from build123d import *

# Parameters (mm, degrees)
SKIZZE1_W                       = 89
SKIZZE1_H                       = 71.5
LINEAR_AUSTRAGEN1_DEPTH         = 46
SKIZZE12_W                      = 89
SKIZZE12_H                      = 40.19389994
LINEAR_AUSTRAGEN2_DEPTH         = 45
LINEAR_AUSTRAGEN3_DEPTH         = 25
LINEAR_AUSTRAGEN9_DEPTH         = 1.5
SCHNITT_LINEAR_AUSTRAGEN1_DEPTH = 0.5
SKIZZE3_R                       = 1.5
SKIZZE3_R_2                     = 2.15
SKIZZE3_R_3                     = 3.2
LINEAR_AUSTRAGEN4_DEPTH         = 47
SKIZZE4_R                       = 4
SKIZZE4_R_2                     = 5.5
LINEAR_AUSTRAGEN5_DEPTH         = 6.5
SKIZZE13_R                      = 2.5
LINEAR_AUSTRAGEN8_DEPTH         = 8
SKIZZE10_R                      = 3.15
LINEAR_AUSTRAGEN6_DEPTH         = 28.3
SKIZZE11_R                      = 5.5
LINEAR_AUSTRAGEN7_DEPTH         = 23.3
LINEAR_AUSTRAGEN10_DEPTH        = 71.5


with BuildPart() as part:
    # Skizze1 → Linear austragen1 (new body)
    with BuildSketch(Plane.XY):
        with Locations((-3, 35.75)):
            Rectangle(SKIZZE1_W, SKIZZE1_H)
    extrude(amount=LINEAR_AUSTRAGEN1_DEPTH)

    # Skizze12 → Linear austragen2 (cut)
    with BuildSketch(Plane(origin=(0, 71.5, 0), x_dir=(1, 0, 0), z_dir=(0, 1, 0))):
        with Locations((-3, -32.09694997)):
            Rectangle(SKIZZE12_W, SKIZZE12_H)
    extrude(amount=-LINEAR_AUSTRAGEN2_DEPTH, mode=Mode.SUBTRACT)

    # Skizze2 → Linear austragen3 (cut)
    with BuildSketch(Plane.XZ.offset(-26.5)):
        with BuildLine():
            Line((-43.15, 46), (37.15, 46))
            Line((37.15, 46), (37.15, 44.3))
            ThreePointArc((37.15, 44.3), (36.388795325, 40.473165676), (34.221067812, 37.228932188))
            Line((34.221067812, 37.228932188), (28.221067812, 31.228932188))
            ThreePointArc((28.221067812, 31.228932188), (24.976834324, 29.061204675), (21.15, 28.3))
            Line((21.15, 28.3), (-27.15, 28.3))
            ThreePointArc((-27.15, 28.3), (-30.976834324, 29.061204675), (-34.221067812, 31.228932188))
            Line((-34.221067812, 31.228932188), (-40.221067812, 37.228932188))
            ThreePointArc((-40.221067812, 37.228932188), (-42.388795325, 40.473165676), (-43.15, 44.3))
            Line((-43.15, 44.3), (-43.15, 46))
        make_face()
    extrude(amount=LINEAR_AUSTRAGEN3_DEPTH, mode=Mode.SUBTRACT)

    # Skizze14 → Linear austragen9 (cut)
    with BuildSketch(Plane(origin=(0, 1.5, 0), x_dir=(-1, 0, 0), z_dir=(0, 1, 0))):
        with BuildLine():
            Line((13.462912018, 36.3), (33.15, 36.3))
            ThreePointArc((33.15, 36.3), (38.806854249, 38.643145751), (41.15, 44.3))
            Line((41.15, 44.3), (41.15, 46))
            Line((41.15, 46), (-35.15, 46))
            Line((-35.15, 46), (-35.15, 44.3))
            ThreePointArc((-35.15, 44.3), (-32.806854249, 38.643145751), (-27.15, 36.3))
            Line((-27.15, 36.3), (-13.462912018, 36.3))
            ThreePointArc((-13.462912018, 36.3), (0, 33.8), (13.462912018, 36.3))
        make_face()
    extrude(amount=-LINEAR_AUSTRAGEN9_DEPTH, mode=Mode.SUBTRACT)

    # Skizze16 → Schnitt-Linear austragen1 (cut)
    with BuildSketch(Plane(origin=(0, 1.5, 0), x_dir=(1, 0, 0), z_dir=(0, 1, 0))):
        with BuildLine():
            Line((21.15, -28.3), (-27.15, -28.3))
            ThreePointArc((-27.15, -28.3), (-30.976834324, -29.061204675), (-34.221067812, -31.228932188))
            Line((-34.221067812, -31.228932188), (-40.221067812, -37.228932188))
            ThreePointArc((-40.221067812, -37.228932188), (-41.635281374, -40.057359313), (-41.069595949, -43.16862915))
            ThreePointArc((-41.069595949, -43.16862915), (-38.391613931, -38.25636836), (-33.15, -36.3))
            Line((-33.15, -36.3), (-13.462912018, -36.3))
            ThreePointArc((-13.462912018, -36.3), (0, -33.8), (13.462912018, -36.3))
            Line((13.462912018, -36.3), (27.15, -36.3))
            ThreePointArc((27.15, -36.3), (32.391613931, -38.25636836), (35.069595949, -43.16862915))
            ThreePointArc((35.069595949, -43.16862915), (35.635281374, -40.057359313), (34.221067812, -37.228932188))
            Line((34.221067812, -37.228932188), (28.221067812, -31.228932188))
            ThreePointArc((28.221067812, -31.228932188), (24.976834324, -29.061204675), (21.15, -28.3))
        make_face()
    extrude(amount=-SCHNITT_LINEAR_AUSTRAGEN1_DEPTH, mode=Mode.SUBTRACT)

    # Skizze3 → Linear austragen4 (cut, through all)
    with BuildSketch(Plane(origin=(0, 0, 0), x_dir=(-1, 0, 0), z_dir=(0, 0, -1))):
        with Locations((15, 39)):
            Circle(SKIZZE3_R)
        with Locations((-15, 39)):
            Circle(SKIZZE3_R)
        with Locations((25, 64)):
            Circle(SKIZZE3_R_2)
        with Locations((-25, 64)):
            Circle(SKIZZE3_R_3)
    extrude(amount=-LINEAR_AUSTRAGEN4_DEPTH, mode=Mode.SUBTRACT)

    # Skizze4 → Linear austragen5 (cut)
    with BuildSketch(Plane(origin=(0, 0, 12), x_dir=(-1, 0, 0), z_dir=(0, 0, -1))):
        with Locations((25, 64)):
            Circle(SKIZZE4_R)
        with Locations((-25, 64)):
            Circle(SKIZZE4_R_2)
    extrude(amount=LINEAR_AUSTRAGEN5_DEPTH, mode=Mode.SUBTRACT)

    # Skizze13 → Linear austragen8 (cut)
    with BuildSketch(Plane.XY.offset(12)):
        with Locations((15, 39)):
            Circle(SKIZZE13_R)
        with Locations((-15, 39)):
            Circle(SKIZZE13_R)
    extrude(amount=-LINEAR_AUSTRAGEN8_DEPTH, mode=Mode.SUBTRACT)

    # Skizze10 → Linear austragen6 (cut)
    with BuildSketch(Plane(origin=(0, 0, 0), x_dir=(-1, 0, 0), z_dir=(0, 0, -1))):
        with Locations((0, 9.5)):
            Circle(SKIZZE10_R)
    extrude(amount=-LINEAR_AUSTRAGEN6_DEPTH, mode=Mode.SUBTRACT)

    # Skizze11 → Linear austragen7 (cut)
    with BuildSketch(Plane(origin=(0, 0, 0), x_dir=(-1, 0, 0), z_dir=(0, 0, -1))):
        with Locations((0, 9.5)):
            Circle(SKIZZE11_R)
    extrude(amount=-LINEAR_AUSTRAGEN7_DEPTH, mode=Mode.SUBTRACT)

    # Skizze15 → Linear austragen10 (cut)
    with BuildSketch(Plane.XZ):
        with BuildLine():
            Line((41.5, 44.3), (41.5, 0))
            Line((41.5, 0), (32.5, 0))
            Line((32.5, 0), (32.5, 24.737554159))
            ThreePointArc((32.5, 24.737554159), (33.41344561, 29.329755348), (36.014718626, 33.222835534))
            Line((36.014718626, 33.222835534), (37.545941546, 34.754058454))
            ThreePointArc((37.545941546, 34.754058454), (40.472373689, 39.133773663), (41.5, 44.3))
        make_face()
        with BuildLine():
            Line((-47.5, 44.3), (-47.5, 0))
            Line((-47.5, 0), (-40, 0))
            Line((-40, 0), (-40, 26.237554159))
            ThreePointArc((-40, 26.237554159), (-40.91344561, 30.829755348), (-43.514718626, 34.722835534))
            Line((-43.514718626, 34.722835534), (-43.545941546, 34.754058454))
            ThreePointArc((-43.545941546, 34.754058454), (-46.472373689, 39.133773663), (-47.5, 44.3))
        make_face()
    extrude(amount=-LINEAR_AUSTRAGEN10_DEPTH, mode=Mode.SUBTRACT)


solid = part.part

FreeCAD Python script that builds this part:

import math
import FreeCAD as App
import Part
import Sketcher

V = App.Vector
Q = App.Units.Quantity


def add_polygon(sketch, points):
    """Adds a closed chain of lines whose ends are joined by coincident constraints."""
    first, n = sketch.GeometryCount, len(points)
    for a, b in zip(points, points[1:] + points[:1]):
        sketch.addGeometry(Part.LineSegment(App.Vector(*a, 0), App.Vector(*b, 0)), False)
    for i in range(n):
        sketch.addConstraint(Sketcher.Constraint("Coincident", first + i, 2, first + (i + 1) % n, 1))

doc = App.newDocument("Part")
body = doc.addObject("PartDesign::Body", "Body")

sketch1 = body.newObject("Sketcher::SketchObject", "Sketch")
sketch1.AttachmentSupport = (doc.getObject("XY_Plane"), [""])
sketch1.MapMode = "FlatFace"
add_polygon(sketch1, [(-47.5, 71.5), (-47.5, 0), (41.5, 0), (41.5, 71.5)])
sketch1.addConstraint(Sketcher.Constraint("Vertical", 0))
sketch1.addConstraint(Sketcher.Constraint("Horizontal", 1))
sketch1.addConstraint(Sketcher.Constraint("Vertical", 2))
sketch1.addConstraint(Sketcher.Constraint("Horizontal", 3))
sketch1.addConstraint(Sketcher.Constraint("PointOnObject", 0, 2, -1))
sketch1.addConstraint(Sketcher.Constraint("DistanceX", 1, 1, 1, 2, Q("89 mm")))
sketch1.addConstraint(Sketcher.Constraint("DistanceY", 0, 2, 0, 1, Q("71.5 mm")))
sketch1.addConstraint(Sketcher.Constraint("DistanceX", 0, 2, -1, 1, Q("47.5 mm")))
pad1 = body.newObject("PartDesign::Pad", "Pad")
pad1.Profile = sketch1
pad1.Length = 46

sketch2 = body.newObject("Sketcher::SketchObject", "Sketch001")
sketch2.AttachmentSupport = (doc.getObject("XZ_Plane"), [""])
sketch2.MapMode = "FlatFace"
sketch2.AttachmentOffset = App.Placement(V(0, 0, -71.5), App.Rotation())
add_polygon(sketch2, [(-47.5, 12), (-47.5, 52.1939), (41.5, 52.1939), (41.5, 12)])
sketch2.addConstraint(Sketcher.Constraint("Vertical", 0))
sketch2.addConstraint(Sketcher.Constraint("Horizontal", 1))
sketch2.addConstraint(Sketcher.Constraint("Vertical", 2))
sketch2.addConstraint(Sketcher.Constraint("Horizontal", 3))
sketch2.addConstraint(Sketcher.Constraint("DistanceX", 1, 1, 1, 2, Q("89 mm")))
sketch2.addConstraint(Sketcher.Constraint("DistanceY", -1, 1, 2, 2, Q("12 mm")))
sketch2.addConstraint(Sketcher.Constraint("DistanceX", 0, 2, -1, 1, Q("47.5 mm")))
sketch2.addConstraint(Sketcher.Constraint("DistanceY", 0, 1, 0, 2, Q("40.1939 mm")))
pocket1 = body.newObject("PartDesign::Pocket", "Pocket")
pocket1.Profile = sketch2
pocket1.Length = 45
pocket1.Reversed = True

sketch3 = body.newObject("Sketcher::SketchObject", "Sketch002")
sketch3.AttachmentSupport = (doc.getObject("XZ_Plane"), [""])
sketch3.MapMode = "FlatFace"
sketch3.AttachmentOffset = App.Placement(V(0, 0, -26.5), App.Rotation())
sketch3.addGeometry(Part.LineSegment(V(37.15, 46, 0), V(-43.15, 46, 0)), False)
sketch3.addGeometry(Part.LineSegment(V(-43.15, 46, 0), V(-43.15, 44.3, 0)), False)
sketch3.addGeometry(Part.ArcOfCircle(Part.Circle(V(-33.15, 44.3, 0), V(0, 0, 1), 10), math.radians(180), math.radians(225)), False)
sketch3.addGeometry(Part.LineSegment(V(-40.221068, 37.228932, 0), V(-34.221068, 31.228932, 0)), False)
sketch3.addGeometry(Part.ArcOfCircle(Part.Circle(V(-27.15, 38.3, 0), V(0, 0, 1), 10), math.radians(-135), math.radians(-90)), False)
sketch3.addGeometry(Part.LineSegment(V(-27.15, 28.3, 0), V(21.15, 28.3, 0)), False)
sketch3.addGeometry(Part.ArcOfCircle(Part.Circle(V(21.15, 38.3, 0), V(0, 0, 1), 10), math.radians(-90), math.radians(-45)), False)
sketch3.addGeometry(Part.LineSegment(V(28.221068, 31.228932, 0), V(34.221068, 37.228932, 0)), False)
sketch3.addGeometry(Part.ArcOfCircle(Part.Circle(V(27.15, 44.3, 0), V(0, 0, 1), 10), math.radians(-45), math.radians(0)), False)
sketch3.addGeometry(Part.LineSegment(V(37.15, 44.3, 0), V(37.15, 46, 0)), False)
sketch3.addConstraint(Sketcher.Constraint("Coincident", 0, 2, 1, 1))
sketch3.addConstraint(Sketcher.Constraint("Tangent", 1, 2, 2, 1))
sketch3.addConstraint(Sketcher.Constraint("Tangent", 2, 2, 3, 1))
sketch3.addConstraint(Sketcher.Constraint("Tangent", 3, 2, 4, 1))
sketch3.addConstraint(Sketcher.Constraint("Tangent", 4, 2, 5, 1))
sketch3.addConstraint(Sketcher.Constraint("Tangent", 5, 2, 6, 1))
sketch3.addConstraint(Sketcher.Constraint("Tangent", 6, 2, 7, 1))
sketch3.addConstraint(Sketcher.Constraint("Tangent", 7, 2, 8, 1))
sketch3.addConstraint(Sketcher.Constraint("Tangent", 8, 2, 9, 1))
sketch3.addConstraint(Sketcher.Constraint("Coincident", 9, 2, 0, 1))
sketch3.addConstraint(Sketcher.Constraint("Horizontal", 0))
sketch3.addConstraint(Sketcher.Constraint("Vertical", 1))
sketch3.addConstraint(Sketcher.Constraint("Horizontal", 5))
sketch3.addConstraint(Sketcher.Constraint("Vertical", 9))
sketch3.addConstraint(Sketcher.Constraint("Equal", 2, 4))
sketch3.addConstraint(Sketcher.Constraint("Equal", 4, 6))
sketch3.addConstraint(Sketcher.Constraint("Equal", 6, 8))
sketch3.addConstraint(Sketcher.Constraint("Perpendicular", 3, 7))
sketch3.addConstraint(Sketcher.Constraint("Horizontal", 2, 3, 8, 3))
sketch3.addConstraint(Sketcher.Constraint("Horizontal", 3, 2, 6, 2))
sketch3.addConstraint(Sketcher.Constraint("Radius", 2, Q("10 mm")))
sketch3.addConstraint(Sketcher.Constraint("DistanceX", 0, 2, 0, 1, Q("80.3 mm")))
sketch3.addConstraint(Sketcher.Constraint("DistanceX", 5, 1, 5, 2, Q("48.3 mm")))
sketch3.addConstraint(Sketcher.Constraint("DistanceY", 1, 2, 1, 1, Q("1.7 mm")))
sketch3.addConstraint(Sketcher.Constraint("DistanceY", -1, 1, 0, 2, Q("46 mm")))
sketch3.addConstraint(Sketcher.Constraint("DistanceX", 2, 3, -1, 1, Q("33.15 mm")))
pocket2 = body.newObject("PartDesign::Pocket", "Pocket001")
pocket2.Profile = sketch3
pocket2.Length = 25
pocket2.Reversed = True

sketch4 = body.newObject("Sketcher::SketchObject", "Sketch003")
sketch4.AttachmentSupport = (doc.getObject("XZ_Plane"), [""])
sketch4.MapMode = "FlatFace"
sketch4.AttachmentOffset = App.Placement(V(0, 0, -1.5), App.Rotation())
sketch4.addGeometry(Part.LineSegment(V(-13.462912, 36.3, 0), V(-33.15, 36.3, 0)), False)
sketch4.addGeometry(Part.ArcOfCircle(Part.Circle(V(-33.15, 44.3, 0), V(0, 0, 1), 8), math.radians(-180), math.radians(-90)), False)
sketch4.addGeometry(Part.LineSegment(V(-41.15, 44.3, 0), V(-41.15, 46, 0)), False)
sketch4.addGeometry(Part.LineSegment(V(-41.15, 46, 0), V(35.15, 46, 0)), False)
sketch4.addGeometry(Part.LineSegment(V(35.15, 46, 0), V(35.15, 44.3, 0)), False)
sketch4.addGeometry(Part.ArcOfCircle(Part.Circle(V(27.15, 44.3, 0), V(0, 0, 1), 8), math.radians(-90), math.radians(0)), False)
sketch4.addGeometry(Part.LineSegment(V(27.15, 36.3, 0), V(13.462912, 36.3, 0)), False)
sketch4.addGeometry(Part.ArcOfCircle(Part.Circle(V(0, 71.3, 0), V(0, 0, 1), 37.5), math.radians(-111.03947), math.radians(-68.96053)), False)
sketch4.addConstraint(Sketcher.Constraint("Tangent", 0, 2, 1, 2))
sketch4.addConstraint(Sketcher.Constraint("Tangent", 1, 1, 2, 1))
sketch4.addConstraint(Sketcher.Constraint("Coincident", 2, 2, 3, 1))
sketch4.addConstraint(Sketcher.Constraint("Coincident", 3, 2, 4, 1))
sketch4.addConstraint(Sketcher.Constraint("Tangent", 4, 2, 5, 2))
sketch4.addConstraint(Sketcher.Constraint("Tangent", 5, 1, 6, 1))
sketch4.addConstraint(Sketcher.Constraint("Coincident", 6, 2, 7, 2))
sketch4.addConstraint(Sketcher.Constraint("Coincident", 7, 1, 0, 1))
sketch4.addConstraint(Sketcher.Constraint("Horizontal", 0))
sketch4.addConstraint(Sketcher.Constraint("Vertical", 2))
sketch4.addConstraint(Sketcher.Constraint("Horizontal", 3))
sketch4.addConstraint(Sketcher.Constraint("Vertical", 4))
sketch4.addConstraint(Sketcher.Constraint("Horizontal", 6))
sketch4.addConstraint(Sketcher.Constraint("Equal", 1, 5))
sketch4.addConstraint(Sketcher.Constraint("Symmetric", 6, 2, 7, 1, -2))
sketch4.addConstraint(Sketcher.Constraint("Radius", 1, Q("8 mm")))
sketch4.addConstraint(Sketcher.Constraint("Radius", 7, Q("37.5 mm")))
sketch4.addConstraint(Sketcher.Constraint("DistanceX", 3, 1, 3, 2, Q("76.3 mm")))
sketch4.addConstraint(Sketcher.Constraint("DistanceY", 2, 1, 2, 2, Q("1.7 mm")))
sketch4.addConstraint(Sketcher.Constraint("DistanceY", -1, 1, 2, 2, Q("46 mm")))
sketch4.addConstraint(Sketcher.Constraint("DistanceY", 5, 3, 7, 3, Q("27 mm")))
sketch4.addConstraint(Sketcher.Constraint("DistanceX", 1, 3, -1, 1, Q("33.15 mm")))
pocket3 = body.newObject("PartDesign::Pocket", "Pocket002")
pocket3.Profile = sketch4
pocket3.Length = 1.5
pocket3.Reversed = True

sketch5 = body.newObject("Sketcher::SketchObject", "Sketch004")
sketch5.AttachmentSupport = (doc.getObject("XZ_Plane"), [""])
sketch5.MapMode = "FlatFace"
sketch5.AttachmentOffset = App.Placement(V(0, 0, -1.5), App.Rotation())
sketch5.addGeometry(Part.LineSegment(V(21.15, 28.3, 0), V(-27.15, 28.3, 0)), False)
sketch5.addGeometry(Part.ArcOfCircle(Part.Circle(V(-27.15, 38.3, 0), V(0, 0, 1), 10), math.radians(-135), math.radians(-90)), False)
sketch5.addGeometry(Part.LineSegment(V(-34.221068, 31.228932, 0), V(-40.221068, 37.228932, 0)), False)
sketch5.addGeometry(Part.ArcOfCircle(Part.Circle(V(-36.685534, 40.764466, 0), V(0, 0, 1), 5), math.radians(151.260205), math.radians(225)), False)
sketch5.addGeometry(Part.ArcOfCircle(Part.Circle(V(-33.15, 44.3, 0), V(0, 0, 1), 8), math.radians(-171.869898), math.radians(-90)), False)
sketch5.addGeometry(Part.LineSegment(V(-33.15, 36.3, 0), V(-13.462912, 36.3, 0)), False)
sketch5.addGeometry(Part.ArcOfCircle(Part.Circle(V(0, 71.3, 0), V(0, 0, 1), 37.5), math.radians(-111.03947), math.radians(-68.96053)), False)
sketch5.addGeometry(Part.LineSegment(V(13.462912, 36.3, 0), V(27.15, 36.3, 0)), False)
sketch5.addGeometry(Part.ArcOfCircle(Part.Circle(V(27.15, 44.3, 0), V(0, 0, 1), 8), math.radians(-90), math.radians(-8.130102)), False)
sketch5.addGeometry(Part.ArcOfCircle(Part.Circle(V(30.685534, 40.764466, 0), V(0, 0, 1), 5), math.radians(-45), math.radians(28.739795)), False)
sketch5.addGeometry(Part.LineSegment(V(34.221068, 37.228932, 0), V(28.221068, 31.228932, 0)), False)
sketch5.addGeometry(Part.ArcOfCircle(Part.Circle(V(21.15, 38.3, 0), V(0, 0, 1), 10), math.radians(-90), math.radians(-45)), False)
sketch5.addConstraint(Sketcher.Constraint("Tangent", 0, 2, 1, 2))
sketch5.addConstraint(Sketcher.Constraint("Tangent", 1, 1, 2, 1))
sketch5.addConstraint(Sketcher.Constraint("Tangent", 2, 2, 3, 2))
sketch5.addConstraint(Sketcher.Constraint("Coincident", 3, 1, 4, 1))
sketch5.addConstraint(Sketcher.Constraint("Tangent", 4, 2, 5, 1))
sketch5.addConstraint(Sketcher.Constraint("Coincident", 5, 2, 6, 1))
sketch5.addConstraint(Sketcher.Constraint("Coincident", 6, 2, 7, 1))
sketch5.addConstraint(Sketcher.Constraint("Tangent", 7, 2, 8, 1))
sketch5.addConstraint(Sketcher.Constraint("Coincident", 8, 2, 9, 2))
sketch5.addConstraint(Sketcher.Constraint("Tangent", 9, 1, 10, 1))
sketch5.addConstraint(Sketcher.Constraint("Tangent", 10, 2, 11, 2))
sketch5.addConstraint(Sketcher.Constraint("Tangent", 11, 1, 0, 1))
sketch5.addConstraint(Sketcher.Constraint("Horizontal", 0))
sketch5.addConstraint(Sketcher.Constraint("Horizontal", 5))
sketch5.addConstraint(Sketcher.Constraint("Horizontal", 7))
sketch5.addConstraint(Sketcher.Constraint("Equal", 4, 8))
sketch5.addConstraint(Sketcher.Constraint("Equal", 3, 9))
sketch5.addConstraint(Sketcher.Constraint("Equal", 1, 11))
sketch5.addConstraint(Sketcher.Constraint("Symmetric", 5, 2, 6, 2, -2))
sketch5.addConstraint(Sketcher.Constraint("Perpendicular", 2, 10))
sketch5.addConstraint(Sketcher.Constraint("Horizontal", 3, 3, 9, 3))
sketch5.addConstraint(Sketcher.Constraint("Horizontal", 3, 1, 8, 2))
sketch5.addConstraint(Sketcher.Constraint("Horizontal", 2, 2, 9, 1))
sketch5.addConstraint(Sketcher.Constraint("Radius", 1, Q("10 mm")))
sketch5.addConstraint(Sketcher.Constraint("Radius", 3, Q("5 mm")))
sketch5.addConstraint(Sketcher.Constraint("Radius", 4, Q("8 mm")))
sketch5.addConstraint(Sketcher.Constraint("Radius", 6, Q("37.5 mm")))
sketch5.addConstraint(Sketcher.Constraint("DistanceX", 0, 2, 0, 1, Q("48.3 mm")))
sketch5.addConstraint(Sketcher.Constraint("DistanceX", 4, 3, 1, 3, Q("6 mm")))
sketch5.addConstraint(Sketcher.Constraint("DistanceY", 1, 3, 4, 3, Q("6 mm")))
sketch5.addConstraint(Sketcher.Constraint("DistanceY", 1, 3, 6, 3, Q("33 mm")))
sketch5.addConstraint(Sketcher.Constraint("DistanceX", 2, 2, 1, 1, Q("6 mm")))
sketch5.addConstraint(Sketcher.Constraint("DistanceY", -1, 1, 1, 3, Q("38.3 mm")))
sketch5.addConstraint(Sketcher.Constraint("DistanceX", 1, 3, -1, 1, Q("27.15 mm")))
pocket4 = body.newObject("PartDesign::Pocket", "Pocket003")
pocket4.Profile = sketch5
pocket4.Length = 0.5
pocket4.Reversed = True

sketch6 = body.newObject("Sketcher::SketchObject", "Sketch005")
sketch6.AttachmentSupport = (doc.getObject("XY_Plane"), [""])
sketch6.MapMode = "FlatFace"
sketch6.addGeometry(Part.Circle(V(-15, 39, 0), V(0, 0, 1), 1.5), False)
sketch6.addGeometry(Part.Circle(V(15, 39, 0), V(0, 0, 1), 1.5), False)
sketch6.addGeometry(Part.Circle(V(-25, 64, 0), V(0, 0, 1), 2.15), False)
sketch6.addGeometry(Part.Circle(V(25, 64, 0), V(0, 0, 1), 3.2), False)
sketch6.addConstraint(Sketcher.Constraint("Equal", 0, 1))
sketch6.addConstraint(Sketcher.Constraint("Symmetric", 0, 3, 1, 3, -2))
sketch6.addConstraint(Sketcher.Constraint("Symmetric", 2, 3, 3, 3, -2))
sketch6.addConstraint(Sketcher.Constraint("Diameter", 0, Q("3 mm")))
sketch6.addConstraint(Sketcher.Constraint("Diameter", 2, Q("4.3 mm")))
sketch6.addConstraint(Sketcher.Constraint("Diameter", 3, Q("6.4 mm")))
sketch6.addConstraint(Sketcher.Constraint("DistanceX", 0, 3, -1, 1, Q("15 mm")))
sketch6.addConstraint(Sketcher.Constraint("DistanceY", -1, 1, 0, 3, Q("39 mm")))
sketch6.addConstraint(Sketcher.Constraint("DistanceX", 2, 3, -1, 1, Q("25 mm")))
sketch6.addConstraint(Sketcher.Constraint("DistanceY", -1, 1, 2, 3, Q("64 mm")))
pocket5 = body.newObject("PartDesign::Pocket", "Pocket004")
pocket5.Profile = sketch6
pocket5.Type = "ThroughAll"
pocket5.Reversed = True

sketch7 = body.newObject("Sketcher::SketchObject", "Sketch006")
sketch7.AttachmentSupport = (doc.getObject("XY_Plane"), [""])
sketch7.MapMode = "FlatFace"
sketch7.AttachmentOffset = App.Placement(V(0, 0, 12), App.Rotation())
sketch7.addGeometry(Part.Circle(V(-25, 64, 0), V(0, 0, 1), 4), False)
sketch7.addGeometry(Part.Circle(V(25, 64, 0), V(0, 0, 1), 5.5), False)
sketch7.addConstraint(Sketcher.Constraint("Symmetric", 0, 3, 1, 3, -2))
sketch7.addConstraint(Sketcher.Constraint("Diameter", 0, Q("8 mm")))
sketch7.addConstraint(Sketcher.Constraint("Diameter", 1, Q("11 mm")))
sketch7.addConstraint(Sketcher.Constraint("DistanceX", 0, 3, -1, 1, Q("25 mm")))
sketch7.addConstraint(Sketcher.Constraint("DistanceY", -1, 1, 0, 3, Q("64 mm")))
pocket6 = body.newObject("PartDesign::Pocket", "Pocket005")
pocket6.Profile = sketch7
pocket6.Length = 6.5

sketch8 = body.newObject("Sketcher::SketchObject", "Sketch007")
sketch8.AttachmentSupport = (doc.getObject("XY_Plane"), [""])
sketch8.MapMode = "FlatFace"
sketch8.AttachmentOffset = App.Placement(V(0, 0, 12), App.Rotation())
sketch8.addGeometry(Part.Circle(V(15, 39, 0), V(0, 0, 1), 2.5), False)
sketch8.addGeometry(Part.Circle(V(-15, 39, 0), V(0, 0, 1), 2.5), False)
sketch8.addConstraint(Sketcher.Constraint("Equal", 0, 1))
sketch8.addConstraint(Sketcher.Constraint("Symmetric", 0, 3, 1, 3, -2))
sketch8.addConstraint(Sketcher.Constraint("Diameter", 0, Q("5 mm")))
sketch8.addConstraint(Sketcher.Constraint("DistanceX", -1, 1, 0, 3, Q("15 mm")))
sketch8.addConstraint(Sketcher.Constraint("DistanceY", -1, 1, 0, 3, Q("39 mm")))
pocket7 = body.newObject("PartDesign::Pocket", "Pocket006")
pocket7.Profile = sketch8
pocket7.Length = 8

sketch9 = body.newObject("Sketcher::SketchObject", "Sketch008")
sketch9.AttachmentSupport = (doc.getObject("XY_Plane"), [""])
sketch9.MapMode = "FlatFace"
sketch9.addGeometry(Part.Circle(V(0, 9.5, 0), V(0, 0, 1), 3.15), False)
sketch9.addConstraint(Sketcher.Constraint("PointOnObject", 0, 3, -2))
sketch9.addConstraint(Sketcher.Constraint("Diameter", 0, Q("6.3 mm")))
sketch9.addConstraint(Sketcher.Constraint("DistanceY", -1, 1, 0, 3, Q("9.5 mm")))
pocket8 = body.newObject("PartDesign::Pocket", "Pocket007")
pocket8.Profile = sketch9
pocket8.Length = 28.3
pocket8.Reversed = True

sketch10 = body.newObject("Sketcher::SketchObject", "Sketch009")
sketch10.AttachmentSupport = (doc.getObject("XY_Plane"), [""])
sketch10.MapMode = "FlatFace"
sketch10.addGeometry(Part.Circle(V(0, 9.5, 0), V(0, 0, 1), 5.5), False)
sketch10.addConstraint(Sketcher.Constraint("PointOnObject", 0, 3, -2))
sketch10.addConstraint(Sketcher.Constraint("Diameter", 0, Q("11 mm")))
sketch10.addConstraint(Sketcher.Constraint("DistanceY", -1, 1, 0, 3, Q("9.5 mm")))
pocket9 = body.newObject("PartDesign::Pocket", "Pocket008")
pocket9.Profile = sketch10
pocket9.Length = 23.3
pocket9.Reversed = True

sketch11 = body.newObject("Sketcher::SketchObject", "Sketch010")
sketch11.AttachmentSupport = (doc.getObject("XZ_Plane"), [""])
sketch11.MapMode = "FlatFace"
sketch11.addGeometry(Part.LineSegment(V(41.5, 0, 0), V(41.5, 44.3, 0)), False)
sketch11.addGeometry(Part.ArcOfCircle(Part.Circle(V(28, 44.3, 0), V(0, 0, 1), 13.5), math.radians(-45), math.radians(0)), False)
sketch11.addGeometry(Part.LineSegment(V(37.545942, 34.754058, 0), V(36.014719, 33.222836, 0)), False)
sketch11.addGeometry(Part.ArcOfCircle(Part.Circle(V(44.5, 24.737554, 0), V(0, 0, 1), 12), math.radians(135), math.radians(180)), False)
sketch11.addGeometry(Part.LineSegment(V(32.5, 24.737554, 0), V(32.5, 0, 0)), False)
sketch11.addGeometry(Part.LineSegment(V(32.5, 0, 0), V(41.5, 0, 0)), False)
sketch11.addGeometry(Part.LineSegment(V(-47.5, 44.3, 0), V(-47.5, 0, 0)), False)
sketch11.addGeometry(Part.LineSegment(V(-47.5, 0, 0), V(-40, 0, 0)), False)
sketch11.addGeometry(Part.LineSegment(V(-40, 0, 0), V(-40, 26.237554, 0)), False)
sketch11.addGeometry(Part.ArcOfCircle(Part.Circle(V(-52, 26.237554, 0), V(0, 0, 1), 12), math.radians(0), math.radians(45)), False)
sketch11.addGeometry(Part.LineSegment(V(-43.514719, 34.722836, 0), V(-43.545942, 34.754058, 0)), False)
sketch11.addGeometry(Part.ArcOfCircle(Part.Circle(V(-34, 44.3, 0), V(0, 0, 1), 13.5), math.radians(180), math.radians(225)), False)
sketch11.addConstraint(Sketcher.Constraint("Tangent", 0, 2, 1, 2))
sketch11.addConstraint(Sketcher.Constraint("Tangent", 1, 1, 2, 1))
sketch11.addConstraint(Sketcher.Constraint("Tangent", 2, 2, 3, 1))
sketch11.addConstraint(Sketcher.Constraint("Tangent", 3, 2, 4, 1))
sketch11.addConstraint(Sketcher.Constraint("Coincident", 4, 2, 5, 1))
sketch11.addConstraint(Sketcher.Constraint("Coincident", 5, 2, 0, 1))
sketch11.addConstraint(Sketcher.Constraint("Coincident", 6, 2, 7, 1))
sketch11.addConstraint(Sketcher.Constraint("Coincident", 7, 2, 8, 1))
sketch11.addConstraint(Sketcher.Constraint("Tangent", 8, 2, 9, 1))
sketch11.addConstraint(Sketcher.Constraint("Tangent", 9, 2, 10, 1))
sketch11.addConstraint(Sketcher.Constraint("Tangent", 10, 2, 11, 2))
sketch11.addConstraint(Sketcher.Constraint("Tangent", 11, 1, 6, 1))
sketch11.addConstraint(Sketcher.Constraint("Vertical", 0))
sketch11.addConstraint(Sketcher.Constraint("Vertical", 4))
sketch11.addConstraint(Sketcher.Constraint("Horizontal", 5))
sketch11.addConstraint(Sketcher.Constraint("Vertical", 6))
sketch11.addConstraint(Sketcher.Constraint("Horizontal", 7))
sketch11.addConstraint(Sketcher.Constraint("Vertical", 8))
sketch11.addConstraint(Sketcher.Constraint("Equal", 3, 9))
sketch11.addConstraint(Sketcher.Constraint("Equal", 1, 11))
sketch11.addConstraint(Sketcher.Constraint("PointOnObject", 4, 2, -1))
sketch11.addConstraint(Sketcher.Constraint("PointOnObject", 6, 2, -1))
sketch11.addConstraint(Sketcher.Constraint("Perpendicular", 2, 10))
sketch11.addConstraint(Sketcher.Constraint("Horizontal", 1, 3, 11, 3))
sketch11.addConstraint(Sketcher.Constraint("Horizontal", 1, 1, 10, 2))
sketch11.addConstraint(Sketcher.Constraint("Radius", 3, Q("12 mm")))
sketch11.addConstraint(Sketcher.Constraint("Radius", 1, Q("13.5 mm")))
sketch11.addConstraint(Sketcher.Constraint("DistanceX", 5, 1, 5, 2, Q("9 mm")))
sketch11.addConstraint(Sketcher.Constraint("DistanceX", 7, 1, 7, 2, Q("7.5 mm")))
sketch11.addConstraint(Sketcher.Constraint("DistanceY", 0, 1, 0, 2, Q("44.3 mm")))
sketch11.addConstraint(Sketcher.Constraint("DistanceX", -1, 1, 1, 3, Q("28 mm")))
sketch11.addConstraint(Sketcher.Constraint("DistanceX", 9, 3, -1, 1, Q("52 mm")))
pocket10 = body.newObject("PartDesign::Pocket", "Pocket009")
pocket10.Profile = sketch11
pocket10.Length = 71.5

doc.recompute()
